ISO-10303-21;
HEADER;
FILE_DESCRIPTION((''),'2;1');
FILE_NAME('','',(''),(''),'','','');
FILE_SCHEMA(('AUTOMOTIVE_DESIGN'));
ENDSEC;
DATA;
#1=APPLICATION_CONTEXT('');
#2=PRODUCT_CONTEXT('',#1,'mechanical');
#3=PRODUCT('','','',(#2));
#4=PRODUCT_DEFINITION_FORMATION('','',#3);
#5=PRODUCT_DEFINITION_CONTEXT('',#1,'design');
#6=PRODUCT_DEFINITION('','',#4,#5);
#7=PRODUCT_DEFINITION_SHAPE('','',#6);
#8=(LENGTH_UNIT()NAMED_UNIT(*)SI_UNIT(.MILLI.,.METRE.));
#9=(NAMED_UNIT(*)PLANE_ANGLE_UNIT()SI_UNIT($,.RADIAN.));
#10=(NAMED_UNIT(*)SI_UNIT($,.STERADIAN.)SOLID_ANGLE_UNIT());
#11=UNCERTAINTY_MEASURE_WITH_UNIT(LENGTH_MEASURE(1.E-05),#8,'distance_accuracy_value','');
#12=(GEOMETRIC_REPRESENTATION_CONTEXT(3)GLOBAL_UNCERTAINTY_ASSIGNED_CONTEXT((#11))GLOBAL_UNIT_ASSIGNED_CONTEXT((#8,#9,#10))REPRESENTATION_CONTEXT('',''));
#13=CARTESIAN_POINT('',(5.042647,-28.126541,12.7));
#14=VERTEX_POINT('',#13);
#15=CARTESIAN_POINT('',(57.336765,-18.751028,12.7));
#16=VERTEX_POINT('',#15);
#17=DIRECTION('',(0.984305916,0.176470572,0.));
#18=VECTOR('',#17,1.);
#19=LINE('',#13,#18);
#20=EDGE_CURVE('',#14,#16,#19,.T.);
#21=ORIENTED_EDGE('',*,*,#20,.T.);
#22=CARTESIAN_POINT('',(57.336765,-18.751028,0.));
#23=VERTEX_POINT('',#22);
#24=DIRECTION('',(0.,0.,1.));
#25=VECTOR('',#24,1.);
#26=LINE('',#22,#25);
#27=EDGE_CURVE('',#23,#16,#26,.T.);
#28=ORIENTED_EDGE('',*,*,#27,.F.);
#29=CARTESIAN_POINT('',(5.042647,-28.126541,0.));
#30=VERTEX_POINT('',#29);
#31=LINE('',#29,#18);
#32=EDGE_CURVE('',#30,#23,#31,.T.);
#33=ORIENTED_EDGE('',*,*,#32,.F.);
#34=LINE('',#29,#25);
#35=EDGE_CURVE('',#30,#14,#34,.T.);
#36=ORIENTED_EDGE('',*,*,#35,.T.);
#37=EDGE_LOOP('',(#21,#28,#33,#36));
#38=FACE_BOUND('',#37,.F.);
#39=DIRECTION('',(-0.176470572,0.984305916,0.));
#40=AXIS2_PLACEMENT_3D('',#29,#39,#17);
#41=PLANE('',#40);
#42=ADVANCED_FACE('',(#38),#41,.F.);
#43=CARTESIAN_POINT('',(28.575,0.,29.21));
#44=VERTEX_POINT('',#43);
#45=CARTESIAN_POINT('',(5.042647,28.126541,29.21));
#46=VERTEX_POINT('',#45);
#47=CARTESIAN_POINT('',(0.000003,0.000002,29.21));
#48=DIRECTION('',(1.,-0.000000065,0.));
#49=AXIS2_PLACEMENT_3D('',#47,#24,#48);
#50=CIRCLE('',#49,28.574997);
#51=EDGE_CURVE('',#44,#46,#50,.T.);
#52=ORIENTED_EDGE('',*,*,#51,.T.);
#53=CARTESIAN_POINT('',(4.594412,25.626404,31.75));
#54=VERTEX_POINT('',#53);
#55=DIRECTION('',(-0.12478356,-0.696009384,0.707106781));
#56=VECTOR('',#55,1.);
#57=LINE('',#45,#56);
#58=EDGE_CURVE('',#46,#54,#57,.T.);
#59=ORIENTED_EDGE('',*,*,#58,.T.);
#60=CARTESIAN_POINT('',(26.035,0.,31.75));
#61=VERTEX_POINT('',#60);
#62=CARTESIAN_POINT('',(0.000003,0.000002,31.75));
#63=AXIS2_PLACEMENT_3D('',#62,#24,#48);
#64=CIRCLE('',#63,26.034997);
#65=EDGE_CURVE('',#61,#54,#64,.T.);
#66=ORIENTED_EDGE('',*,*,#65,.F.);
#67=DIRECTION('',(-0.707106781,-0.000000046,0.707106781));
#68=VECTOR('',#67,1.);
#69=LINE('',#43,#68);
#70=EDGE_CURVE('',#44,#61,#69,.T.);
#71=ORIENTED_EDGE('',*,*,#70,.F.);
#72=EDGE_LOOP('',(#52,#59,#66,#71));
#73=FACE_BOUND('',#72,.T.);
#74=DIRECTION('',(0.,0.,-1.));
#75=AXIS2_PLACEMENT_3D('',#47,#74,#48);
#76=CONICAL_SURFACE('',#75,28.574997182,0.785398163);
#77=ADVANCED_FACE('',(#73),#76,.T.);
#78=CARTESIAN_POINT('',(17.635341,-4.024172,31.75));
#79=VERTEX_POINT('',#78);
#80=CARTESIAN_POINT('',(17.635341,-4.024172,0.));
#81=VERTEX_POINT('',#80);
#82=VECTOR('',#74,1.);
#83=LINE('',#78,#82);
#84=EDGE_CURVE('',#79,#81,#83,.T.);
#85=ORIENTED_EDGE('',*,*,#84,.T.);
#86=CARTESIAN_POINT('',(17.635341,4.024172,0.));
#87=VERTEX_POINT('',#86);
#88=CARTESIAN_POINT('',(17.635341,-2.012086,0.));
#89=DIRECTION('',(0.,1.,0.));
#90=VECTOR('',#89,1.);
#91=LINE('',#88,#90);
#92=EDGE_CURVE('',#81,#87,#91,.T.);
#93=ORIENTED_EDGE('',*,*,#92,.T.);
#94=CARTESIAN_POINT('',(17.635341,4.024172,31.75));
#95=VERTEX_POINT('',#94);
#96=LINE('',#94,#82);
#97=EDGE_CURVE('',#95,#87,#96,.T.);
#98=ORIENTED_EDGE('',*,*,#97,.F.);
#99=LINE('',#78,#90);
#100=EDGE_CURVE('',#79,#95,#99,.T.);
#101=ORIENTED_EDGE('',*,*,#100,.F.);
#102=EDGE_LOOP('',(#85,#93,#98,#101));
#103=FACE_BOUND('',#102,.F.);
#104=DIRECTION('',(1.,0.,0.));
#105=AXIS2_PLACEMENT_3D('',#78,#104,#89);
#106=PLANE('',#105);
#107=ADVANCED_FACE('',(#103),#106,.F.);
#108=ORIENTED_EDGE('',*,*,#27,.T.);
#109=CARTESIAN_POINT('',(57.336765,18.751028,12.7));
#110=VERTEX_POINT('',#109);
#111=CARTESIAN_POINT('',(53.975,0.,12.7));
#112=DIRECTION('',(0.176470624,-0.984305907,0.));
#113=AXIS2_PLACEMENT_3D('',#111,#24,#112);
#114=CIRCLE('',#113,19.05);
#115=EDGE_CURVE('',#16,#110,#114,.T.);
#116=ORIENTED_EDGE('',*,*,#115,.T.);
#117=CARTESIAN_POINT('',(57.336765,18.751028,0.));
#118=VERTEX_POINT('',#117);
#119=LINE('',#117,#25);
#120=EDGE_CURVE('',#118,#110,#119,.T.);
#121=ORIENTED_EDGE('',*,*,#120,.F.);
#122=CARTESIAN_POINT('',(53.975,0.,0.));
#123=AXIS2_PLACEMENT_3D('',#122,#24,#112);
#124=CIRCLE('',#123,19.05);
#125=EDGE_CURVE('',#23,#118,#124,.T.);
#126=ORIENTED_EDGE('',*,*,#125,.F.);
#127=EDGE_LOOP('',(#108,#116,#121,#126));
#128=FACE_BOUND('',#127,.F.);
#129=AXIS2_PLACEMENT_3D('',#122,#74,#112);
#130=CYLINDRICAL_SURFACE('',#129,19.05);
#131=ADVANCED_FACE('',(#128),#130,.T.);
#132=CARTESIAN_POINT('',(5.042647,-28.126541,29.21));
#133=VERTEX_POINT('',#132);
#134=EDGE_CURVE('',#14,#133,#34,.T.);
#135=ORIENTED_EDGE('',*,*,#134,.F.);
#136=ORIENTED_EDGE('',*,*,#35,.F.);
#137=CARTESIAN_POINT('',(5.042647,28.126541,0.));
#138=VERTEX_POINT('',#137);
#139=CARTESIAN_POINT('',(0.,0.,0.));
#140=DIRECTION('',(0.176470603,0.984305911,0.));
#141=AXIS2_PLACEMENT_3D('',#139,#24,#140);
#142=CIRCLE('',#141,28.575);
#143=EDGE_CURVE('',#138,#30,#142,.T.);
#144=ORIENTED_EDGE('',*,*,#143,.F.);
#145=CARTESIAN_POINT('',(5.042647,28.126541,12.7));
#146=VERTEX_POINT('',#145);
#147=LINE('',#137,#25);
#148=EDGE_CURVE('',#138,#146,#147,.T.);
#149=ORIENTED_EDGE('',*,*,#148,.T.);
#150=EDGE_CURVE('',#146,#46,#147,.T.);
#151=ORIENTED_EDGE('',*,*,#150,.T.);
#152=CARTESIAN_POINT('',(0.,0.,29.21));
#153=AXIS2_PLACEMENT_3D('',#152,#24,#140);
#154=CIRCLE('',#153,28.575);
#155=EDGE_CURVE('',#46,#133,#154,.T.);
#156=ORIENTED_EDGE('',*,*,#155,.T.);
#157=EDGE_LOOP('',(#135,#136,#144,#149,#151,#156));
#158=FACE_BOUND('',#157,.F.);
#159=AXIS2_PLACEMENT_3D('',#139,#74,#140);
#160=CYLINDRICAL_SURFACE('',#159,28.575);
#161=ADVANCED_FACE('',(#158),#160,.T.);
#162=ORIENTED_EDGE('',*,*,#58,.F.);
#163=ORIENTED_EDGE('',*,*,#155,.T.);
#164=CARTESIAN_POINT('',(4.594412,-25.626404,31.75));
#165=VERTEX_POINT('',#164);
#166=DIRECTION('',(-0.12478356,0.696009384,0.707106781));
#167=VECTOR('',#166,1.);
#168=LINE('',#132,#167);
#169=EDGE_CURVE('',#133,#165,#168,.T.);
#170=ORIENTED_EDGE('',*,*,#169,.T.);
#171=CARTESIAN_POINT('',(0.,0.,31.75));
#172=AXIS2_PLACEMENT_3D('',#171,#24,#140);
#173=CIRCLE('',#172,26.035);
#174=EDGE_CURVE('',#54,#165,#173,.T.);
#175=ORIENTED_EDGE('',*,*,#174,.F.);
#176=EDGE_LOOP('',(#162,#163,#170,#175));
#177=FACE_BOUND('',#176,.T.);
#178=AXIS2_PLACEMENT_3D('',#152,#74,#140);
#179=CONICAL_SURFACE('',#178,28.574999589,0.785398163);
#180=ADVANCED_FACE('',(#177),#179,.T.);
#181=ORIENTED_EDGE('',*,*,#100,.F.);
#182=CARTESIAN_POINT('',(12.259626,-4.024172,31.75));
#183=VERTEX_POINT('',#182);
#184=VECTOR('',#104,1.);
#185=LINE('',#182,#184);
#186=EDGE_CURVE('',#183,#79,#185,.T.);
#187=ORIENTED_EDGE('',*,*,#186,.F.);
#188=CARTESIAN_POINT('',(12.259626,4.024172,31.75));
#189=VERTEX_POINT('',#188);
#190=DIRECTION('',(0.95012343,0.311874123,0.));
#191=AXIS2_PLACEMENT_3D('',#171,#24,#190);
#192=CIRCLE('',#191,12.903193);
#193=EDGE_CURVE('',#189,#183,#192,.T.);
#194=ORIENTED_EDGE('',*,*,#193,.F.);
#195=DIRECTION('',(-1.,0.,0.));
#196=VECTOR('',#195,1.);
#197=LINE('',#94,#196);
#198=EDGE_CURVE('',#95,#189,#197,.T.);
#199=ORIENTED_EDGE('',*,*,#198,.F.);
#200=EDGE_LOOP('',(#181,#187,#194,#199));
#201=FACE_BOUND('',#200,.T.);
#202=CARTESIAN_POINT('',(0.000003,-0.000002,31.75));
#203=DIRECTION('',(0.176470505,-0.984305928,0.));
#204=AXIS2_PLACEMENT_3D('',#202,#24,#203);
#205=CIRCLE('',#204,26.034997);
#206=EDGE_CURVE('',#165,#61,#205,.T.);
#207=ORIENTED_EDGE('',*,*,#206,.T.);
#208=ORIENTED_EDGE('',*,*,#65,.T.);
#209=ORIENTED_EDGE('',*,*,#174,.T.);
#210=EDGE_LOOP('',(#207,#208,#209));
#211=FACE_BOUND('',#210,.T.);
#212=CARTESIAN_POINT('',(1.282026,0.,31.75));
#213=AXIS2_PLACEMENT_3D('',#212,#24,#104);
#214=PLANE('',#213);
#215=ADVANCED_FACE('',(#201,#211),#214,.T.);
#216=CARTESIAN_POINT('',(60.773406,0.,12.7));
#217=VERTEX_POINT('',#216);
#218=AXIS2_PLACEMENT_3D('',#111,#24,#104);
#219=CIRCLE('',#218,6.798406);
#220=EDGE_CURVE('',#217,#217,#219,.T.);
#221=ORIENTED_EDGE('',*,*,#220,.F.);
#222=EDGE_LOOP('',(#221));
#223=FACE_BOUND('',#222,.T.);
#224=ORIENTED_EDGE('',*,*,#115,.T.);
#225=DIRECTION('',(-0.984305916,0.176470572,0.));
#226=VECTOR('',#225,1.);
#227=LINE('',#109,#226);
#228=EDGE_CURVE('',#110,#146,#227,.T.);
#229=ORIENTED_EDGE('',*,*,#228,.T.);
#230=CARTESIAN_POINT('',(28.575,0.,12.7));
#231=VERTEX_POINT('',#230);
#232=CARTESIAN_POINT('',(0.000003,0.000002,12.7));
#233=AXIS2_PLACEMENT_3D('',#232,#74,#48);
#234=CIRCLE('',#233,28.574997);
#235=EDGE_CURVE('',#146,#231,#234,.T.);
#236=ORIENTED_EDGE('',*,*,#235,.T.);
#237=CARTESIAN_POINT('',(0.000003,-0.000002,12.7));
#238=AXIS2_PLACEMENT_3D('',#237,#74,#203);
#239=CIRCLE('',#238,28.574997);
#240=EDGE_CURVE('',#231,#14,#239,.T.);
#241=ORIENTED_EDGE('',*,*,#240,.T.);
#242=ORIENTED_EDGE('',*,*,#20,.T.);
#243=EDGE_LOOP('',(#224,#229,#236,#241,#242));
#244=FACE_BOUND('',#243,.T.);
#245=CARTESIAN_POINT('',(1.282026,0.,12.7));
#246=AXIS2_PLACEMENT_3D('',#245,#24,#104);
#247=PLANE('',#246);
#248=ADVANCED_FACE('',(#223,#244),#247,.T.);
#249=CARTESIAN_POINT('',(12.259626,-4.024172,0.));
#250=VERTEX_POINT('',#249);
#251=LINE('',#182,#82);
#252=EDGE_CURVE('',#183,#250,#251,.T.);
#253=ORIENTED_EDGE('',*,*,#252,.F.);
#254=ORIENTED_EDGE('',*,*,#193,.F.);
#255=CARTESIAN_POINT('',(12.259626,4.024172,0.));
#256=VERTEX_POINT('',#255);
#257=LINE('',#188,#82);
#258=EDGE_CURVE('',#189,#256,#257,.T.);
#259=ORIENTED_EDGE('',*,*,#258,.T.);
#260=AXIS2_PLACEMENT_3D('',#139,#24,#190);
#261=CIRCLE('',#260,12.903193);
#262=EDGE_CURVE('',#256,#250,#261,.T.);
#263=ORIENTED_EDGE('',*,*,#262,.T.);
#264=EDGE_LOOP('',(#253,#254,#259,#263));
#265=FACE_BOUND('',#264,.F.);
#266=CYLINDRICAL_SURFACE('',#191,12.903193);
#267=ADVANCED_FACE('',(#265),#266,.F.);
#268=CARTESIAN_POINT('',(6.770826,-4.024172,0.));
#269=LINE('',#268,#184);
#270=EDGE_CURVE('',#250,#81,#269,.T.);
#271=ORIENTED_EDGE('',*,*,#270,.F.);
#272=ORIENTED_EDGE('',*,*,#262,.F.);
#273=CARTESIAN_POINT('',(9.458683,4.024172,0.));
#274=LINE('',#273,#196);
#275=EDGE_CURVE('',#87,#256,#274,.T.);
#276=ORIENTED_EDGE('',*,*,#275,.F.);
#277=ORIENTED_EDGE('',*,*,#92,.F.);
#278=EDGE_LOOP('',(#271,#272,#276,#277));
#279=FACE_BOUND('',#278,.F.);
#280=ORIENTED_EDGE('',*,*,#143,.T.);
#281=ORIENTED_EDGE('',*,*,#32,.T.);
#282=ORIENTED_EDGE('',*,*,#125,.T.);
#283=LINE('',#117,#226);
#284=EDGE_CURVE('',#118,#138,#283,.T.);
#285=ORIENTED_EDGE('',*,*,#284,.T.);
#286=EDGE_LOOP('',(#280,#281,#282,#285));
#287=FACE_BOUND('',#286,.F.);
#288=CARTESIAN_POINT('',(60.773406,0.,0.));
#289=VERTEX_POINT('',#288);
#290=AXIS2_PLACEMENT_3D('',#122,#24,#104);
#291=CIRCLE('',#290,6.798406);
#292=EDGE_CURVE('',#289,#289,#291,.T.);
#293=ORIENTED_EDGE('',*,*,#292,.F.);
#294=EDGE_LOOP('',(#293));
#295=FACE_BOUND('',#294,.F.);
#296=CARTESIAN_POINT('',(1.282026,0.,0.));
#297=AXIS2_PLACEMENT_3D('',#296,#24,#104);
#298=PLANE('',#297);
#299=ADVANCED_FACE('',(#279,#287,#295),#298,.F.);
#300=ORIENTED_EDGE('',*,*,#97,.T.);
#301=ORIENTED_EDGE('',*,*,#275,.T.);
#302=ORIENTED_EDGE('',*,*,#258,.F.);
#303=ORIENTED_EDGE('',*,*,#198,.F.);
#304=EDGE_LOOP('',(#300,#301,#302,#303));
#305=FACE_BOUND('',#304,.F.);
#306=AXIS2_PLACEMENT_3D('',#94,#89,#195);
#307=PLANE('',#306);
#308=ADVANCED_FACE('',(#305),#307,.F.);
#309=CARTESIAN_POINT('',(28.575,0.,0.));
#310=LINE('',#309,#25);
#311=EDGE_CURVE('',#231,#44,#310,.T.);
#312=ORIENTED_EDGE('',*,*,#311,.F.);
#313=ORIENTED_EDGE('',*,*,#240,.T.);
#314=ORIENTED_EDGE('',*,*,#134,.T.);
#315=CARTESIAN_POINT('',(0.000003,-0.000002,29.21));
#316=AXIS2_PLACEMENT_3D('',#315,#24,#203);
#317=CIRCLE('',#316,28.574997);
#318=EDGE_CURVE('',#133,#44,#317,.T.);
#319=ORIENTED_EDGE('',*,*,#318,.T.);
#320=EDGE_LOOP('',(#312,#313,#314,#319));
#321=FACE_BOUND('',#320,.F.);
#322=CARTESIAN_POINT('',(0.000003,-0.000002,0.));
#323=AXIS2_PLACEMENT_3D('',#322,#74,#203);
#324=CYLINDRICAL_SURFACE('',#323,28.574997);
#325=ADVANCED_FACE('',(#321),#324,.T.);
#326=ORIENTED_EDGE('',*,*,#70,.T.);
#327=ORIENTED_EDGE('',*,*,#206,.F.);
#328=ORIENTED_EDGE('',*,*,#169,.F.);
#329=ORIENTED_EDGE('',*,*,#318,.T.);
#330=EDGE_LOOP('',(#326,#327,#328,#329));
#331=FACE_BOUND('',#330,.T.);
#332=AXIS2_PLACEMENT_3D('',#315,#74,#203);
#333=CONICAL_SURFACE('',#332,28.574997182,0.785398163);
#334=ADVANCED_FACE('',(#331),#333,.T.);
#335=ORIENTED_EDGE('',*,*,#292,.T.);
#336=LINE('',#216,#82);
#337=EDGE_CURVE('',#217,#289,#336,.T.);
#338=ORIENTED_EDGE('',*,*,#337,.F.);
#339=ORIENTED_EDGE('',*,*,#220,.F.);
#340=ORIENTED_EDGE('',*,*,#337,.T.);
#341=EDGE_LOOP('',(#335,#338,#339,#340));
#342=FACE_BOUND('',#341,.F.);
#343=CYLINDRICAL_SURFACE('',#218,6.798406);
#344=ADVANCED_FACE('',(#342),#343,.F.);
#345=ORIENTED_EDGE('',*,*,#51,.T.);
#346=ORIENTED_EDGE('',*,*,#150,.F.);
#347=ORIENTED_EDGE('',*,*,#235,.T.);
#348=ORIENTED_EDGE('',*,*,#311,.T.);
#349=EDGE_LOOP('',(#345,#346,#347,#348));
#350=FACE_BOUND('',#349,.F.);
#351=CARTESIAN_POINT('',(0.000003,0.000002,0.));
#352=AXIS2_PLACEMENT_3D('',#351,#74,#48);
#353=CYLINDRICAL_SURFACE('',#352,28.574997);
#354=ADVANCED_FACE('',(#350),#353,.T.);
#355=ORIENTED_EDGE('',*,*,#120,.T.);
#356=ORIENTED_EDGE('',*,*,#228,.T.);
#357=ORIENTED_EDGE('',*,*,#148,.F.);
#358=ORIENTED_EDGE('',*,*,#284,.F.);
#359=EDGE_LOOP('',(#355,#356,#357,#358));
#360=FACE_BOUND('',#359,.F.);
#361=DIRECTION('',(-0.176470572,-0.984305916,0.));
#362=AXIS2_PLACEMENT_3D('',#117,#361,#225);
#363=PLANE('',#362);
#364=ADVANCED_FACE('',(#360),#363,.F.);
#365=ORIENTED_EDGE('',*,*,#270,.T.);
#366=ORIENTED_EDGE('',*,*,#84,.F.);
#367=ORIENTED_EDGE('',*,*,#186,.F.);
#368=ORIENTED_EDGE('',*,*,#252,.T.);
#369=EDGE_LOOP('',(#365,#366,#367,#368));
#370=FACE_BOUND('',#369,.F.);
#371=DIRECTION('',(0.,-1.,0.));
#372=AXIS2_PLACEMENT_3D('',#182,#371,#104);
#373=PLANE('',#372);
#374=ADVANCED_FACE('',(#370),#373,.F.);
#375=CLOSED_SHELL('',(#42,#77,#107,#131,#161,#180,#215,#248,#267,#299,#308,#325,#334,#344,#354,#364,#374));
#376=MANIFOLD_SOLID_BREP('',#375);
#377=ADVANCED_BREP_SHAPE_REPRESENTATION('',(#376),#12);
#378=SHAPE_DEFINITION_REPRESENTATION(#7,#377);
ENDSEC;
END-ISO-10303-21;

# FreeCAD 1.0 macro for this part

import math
import FreeCAD as App
import Part
import Sketcher
Q = App.Units.Quantity


def edges_at(feature, points):
    """Names of the edges that pass closest to the given points."""
    edges = feature.Shape.Edges
    near = lambda p: min(range(len(edges)), key=lambda i: edges[i].distToShape(Part.Vertex(*p))[0])
    return sorted({f"Edge{near(p) + 1}" for p in points})

doc = App.newDocument("Part")
body = doc.addObject("PartDesign::Body", "Body")

sketch1 = body.newObject("Sketcher::SketchObject", "Sketch")
sketch1.AttachmentSupport = (doc.getObject("XY_Plane"), [""])
sketch1.MapMode = "FlatFace"
sketch1.addGeometry([
    Part.ArcOfCircle(Part.Circle(App.Vector(0, 0, 0), App.Vector(0, 0, 1), 28.575), math.radians(79.835751), math.radians(280.164249)),
    Part.LineSegment(App.Vector(5.042647, -28.126541, 0), App.Vector(57.336765, -18.751028, 0)),
    Part.ArcOfCircle(Part.Circle(App.Vector(53.975, 0, 0), App.Vector(0, 0, 1), 19.05), math.radians(-79.835749), math.radians(79.835749)),
    Part.LineSegment(App.Vector(57.336765, 18.751028, 0), App.Vector(5.042647, 28.126541, 0)),
], False)
sketch1.addConstraint([
    Sketcher.Constraint("Tangent", 0, 2, 1, 1),
    Sketcher.Constraint("Tangent", 1, 2, 2, 1),
    Sketcher.Constraint("Tangent", 2, 2, 3, 1),
    Sketcher.Constraint("Tangent", 3, 2, 0, 1),
    Sketcher.Constraint("Coincident", 0, 3, -1, 1),
    Sketcher.Constraint("PointOnObject", 2, 3, -1),
    Sketcher.Constraint("Radius", 2, Q("0.75 in")),
    Sketcher.Constraint("Radius", 0, Q("1.125 in")),
    Sketcher.Constraint("DistanceX", -1, 1, 2, 3, Q("2.125 in")),
])
pad1 = body.newObject("PartDesign::Pad", "Pad")
pad1.Profile = sketch1
pad1.Length = Q("0.5 in")

sketch2 = body.newObject("Sketcher::SketchObject", "Sketch001")
sketch2.AttachmentSupport = (doc.getObject("XY_Plane"), [""])
sketch2.MapMode = "FlatFace"
sketch2.addGeometry([
    Part.ArcOfCircle(Part.Circle(App.Vector(0.000003, -0.000002, 0), App.Vector(0, 0, 1), 28.574997), math.radians(-79.835756), math.radians(0.000004)),
    Part.ArcOfCircle(Part.Circle(App.Vector(0.000003, 0.000002, 0), App.Vector(0, 0, 1), 28.574997), math.radians(-0.000004), math.radians(79.835756)),
    Part.ArcOfCircle(Part.Circle(App.Vector(0, 0, 0), App.Vector(0, 0, 1), 28.575), math.radians(79.835751), math.radians(280.164249)),
], False)
sketch2.addConstraint([
    Sketcher.Constraint("Tangent", 0, 2, 1, 1),
    Sketcher.Constraint("Tangent", 1, 2, 2, 1),
    Sketcher.Constraint("Tangent", 2, 2, 0, 1),
    Sketcher.Constraint("Coincident", 0, 3, -1, 1),
    Sketcher.Constraint("PointOnObject", 0, 2, -1),
    Sketcher.Constraint("Vertical", 1, 2, 2, 2),
    Sketcher.Constraint("Radius", 0, Q("1.1249999 in")),
    Sketcher.Constraint("DistanceY", -1, 1, 1, 2, Q("28.126541 mm")),
])
pad2 = body.newObject("PartDesign::Pad", "Pad001")
pad2.Profile = sketch2
pad2.Length = Q("1.25 in")

sketch3 = body.newObject("Sketcher::SketchObject", "Sketch002")
sketch3.AttachmentSupport = (doc.getObject("XY_Plane"), [""])
sketch3.MapMode = "FlatFace"
sketch3.AttachmentOffset = App.Placement(App.Vector(0, 0, 0.5 * 25.4), App.Rotation())
sketch3.addGeometry(Part.Circle(App.Vector(53.975, 0, 0), App.Vector(0, 0, 1), 6.798406), False)
sketch3.addConstraint([
    Sketcher.Constraint("PointOnObject", 0, 3, -1),
    Sketcher.Constraint("DistanceX", -1, 1, 0, 3, Q("2.125 in")),
    Sketcher.Constraint("Diameter", 0, Q("13.596812 mm")),
])
pocket1 = body.newObject("PartDesign::Pocket", "Pocket")
pocket1.Profile = sketch3
pocket1.Length = Q("1 in")
doc.recompute()

chamfer = body.newObject("PartDesign::Chamfer", "Chamfer")
chamfer.Base = (pocket1, edges_at(pocket1, [(-28.575, 0, 31.75)]))
chamfer.Size = Q("0.1 in")

sketch4 = body.newObject("Sketcher::SketchObject", "Sketch003")
sketch4.AttachmentSupport = (doc.getObject("XY_Plane"), [""])
sketch4.MapMode = "FlatFace"
sketch4.AttachmentOffset = App.Placement(App.Vector(0, 0, 1.25 * 25.4), App.Rotation())
sketch4.addGeometry([
    Part.LineSegment(App.Vector(17.635341, 4.024172, 0), App.Vector(12.259626, 4.024172, 0)),
    Part.ArcOfCircle(Part.Circle(App.Vector(0, 0, 0), App.Vector(0, 0, 1), 12.903193), math.radians(18.17221), math.radians(341.82779)),
    Part.LineSegment(App.Vector(12.259626, -4.024172, 0), App.Vector(17.635341, -4.024172, 0)),
    Part.LineSegment(App.Vector(17.635341, -4.024172, 0), App.Vector(17.635341, 4.024172, 0)),
], False)
sketch4.addConstraint([
    Sketcher.Constraint("Coincident", 0, 2, 1, 1),
    Sketcher.Constraint("Coincident", 1, 2, 2, 1),
    Sketcher.Constraint("Coincident", 2, 2, 3, 1),
    Sketcher.Constraint("Coincident", 3, 2, 0, 1),
    Sketcher.Constraint("Horizontal", 0),
    Sketcher.Constraint("Horizontal", 2),
    Sketcher.Constraint("Vertical", 3),
    Sketcher.Constraint("Coincident", 1, 3, -1, 1),
    Sketcher.Constraint("Vertical", 0, 2, 1, 2),
    Sketcher.Constraint("Radius", 1, Q("12.903193 mm")),
    Sketcher.Constraint("DistanceX", 0, 2, 0, 1, Q("5.375715 mm")),
    Sketcher.Constraint("DistanceY", 3, 1, 3, 2, Q("8.048344 mm")),
])
pocket2 = body.newObject("PartDesign::Pocket", "Pocket001")
pocket2.Profile = sketch4
pocket2.Type = "ThroughAll"

doc.recompute()
